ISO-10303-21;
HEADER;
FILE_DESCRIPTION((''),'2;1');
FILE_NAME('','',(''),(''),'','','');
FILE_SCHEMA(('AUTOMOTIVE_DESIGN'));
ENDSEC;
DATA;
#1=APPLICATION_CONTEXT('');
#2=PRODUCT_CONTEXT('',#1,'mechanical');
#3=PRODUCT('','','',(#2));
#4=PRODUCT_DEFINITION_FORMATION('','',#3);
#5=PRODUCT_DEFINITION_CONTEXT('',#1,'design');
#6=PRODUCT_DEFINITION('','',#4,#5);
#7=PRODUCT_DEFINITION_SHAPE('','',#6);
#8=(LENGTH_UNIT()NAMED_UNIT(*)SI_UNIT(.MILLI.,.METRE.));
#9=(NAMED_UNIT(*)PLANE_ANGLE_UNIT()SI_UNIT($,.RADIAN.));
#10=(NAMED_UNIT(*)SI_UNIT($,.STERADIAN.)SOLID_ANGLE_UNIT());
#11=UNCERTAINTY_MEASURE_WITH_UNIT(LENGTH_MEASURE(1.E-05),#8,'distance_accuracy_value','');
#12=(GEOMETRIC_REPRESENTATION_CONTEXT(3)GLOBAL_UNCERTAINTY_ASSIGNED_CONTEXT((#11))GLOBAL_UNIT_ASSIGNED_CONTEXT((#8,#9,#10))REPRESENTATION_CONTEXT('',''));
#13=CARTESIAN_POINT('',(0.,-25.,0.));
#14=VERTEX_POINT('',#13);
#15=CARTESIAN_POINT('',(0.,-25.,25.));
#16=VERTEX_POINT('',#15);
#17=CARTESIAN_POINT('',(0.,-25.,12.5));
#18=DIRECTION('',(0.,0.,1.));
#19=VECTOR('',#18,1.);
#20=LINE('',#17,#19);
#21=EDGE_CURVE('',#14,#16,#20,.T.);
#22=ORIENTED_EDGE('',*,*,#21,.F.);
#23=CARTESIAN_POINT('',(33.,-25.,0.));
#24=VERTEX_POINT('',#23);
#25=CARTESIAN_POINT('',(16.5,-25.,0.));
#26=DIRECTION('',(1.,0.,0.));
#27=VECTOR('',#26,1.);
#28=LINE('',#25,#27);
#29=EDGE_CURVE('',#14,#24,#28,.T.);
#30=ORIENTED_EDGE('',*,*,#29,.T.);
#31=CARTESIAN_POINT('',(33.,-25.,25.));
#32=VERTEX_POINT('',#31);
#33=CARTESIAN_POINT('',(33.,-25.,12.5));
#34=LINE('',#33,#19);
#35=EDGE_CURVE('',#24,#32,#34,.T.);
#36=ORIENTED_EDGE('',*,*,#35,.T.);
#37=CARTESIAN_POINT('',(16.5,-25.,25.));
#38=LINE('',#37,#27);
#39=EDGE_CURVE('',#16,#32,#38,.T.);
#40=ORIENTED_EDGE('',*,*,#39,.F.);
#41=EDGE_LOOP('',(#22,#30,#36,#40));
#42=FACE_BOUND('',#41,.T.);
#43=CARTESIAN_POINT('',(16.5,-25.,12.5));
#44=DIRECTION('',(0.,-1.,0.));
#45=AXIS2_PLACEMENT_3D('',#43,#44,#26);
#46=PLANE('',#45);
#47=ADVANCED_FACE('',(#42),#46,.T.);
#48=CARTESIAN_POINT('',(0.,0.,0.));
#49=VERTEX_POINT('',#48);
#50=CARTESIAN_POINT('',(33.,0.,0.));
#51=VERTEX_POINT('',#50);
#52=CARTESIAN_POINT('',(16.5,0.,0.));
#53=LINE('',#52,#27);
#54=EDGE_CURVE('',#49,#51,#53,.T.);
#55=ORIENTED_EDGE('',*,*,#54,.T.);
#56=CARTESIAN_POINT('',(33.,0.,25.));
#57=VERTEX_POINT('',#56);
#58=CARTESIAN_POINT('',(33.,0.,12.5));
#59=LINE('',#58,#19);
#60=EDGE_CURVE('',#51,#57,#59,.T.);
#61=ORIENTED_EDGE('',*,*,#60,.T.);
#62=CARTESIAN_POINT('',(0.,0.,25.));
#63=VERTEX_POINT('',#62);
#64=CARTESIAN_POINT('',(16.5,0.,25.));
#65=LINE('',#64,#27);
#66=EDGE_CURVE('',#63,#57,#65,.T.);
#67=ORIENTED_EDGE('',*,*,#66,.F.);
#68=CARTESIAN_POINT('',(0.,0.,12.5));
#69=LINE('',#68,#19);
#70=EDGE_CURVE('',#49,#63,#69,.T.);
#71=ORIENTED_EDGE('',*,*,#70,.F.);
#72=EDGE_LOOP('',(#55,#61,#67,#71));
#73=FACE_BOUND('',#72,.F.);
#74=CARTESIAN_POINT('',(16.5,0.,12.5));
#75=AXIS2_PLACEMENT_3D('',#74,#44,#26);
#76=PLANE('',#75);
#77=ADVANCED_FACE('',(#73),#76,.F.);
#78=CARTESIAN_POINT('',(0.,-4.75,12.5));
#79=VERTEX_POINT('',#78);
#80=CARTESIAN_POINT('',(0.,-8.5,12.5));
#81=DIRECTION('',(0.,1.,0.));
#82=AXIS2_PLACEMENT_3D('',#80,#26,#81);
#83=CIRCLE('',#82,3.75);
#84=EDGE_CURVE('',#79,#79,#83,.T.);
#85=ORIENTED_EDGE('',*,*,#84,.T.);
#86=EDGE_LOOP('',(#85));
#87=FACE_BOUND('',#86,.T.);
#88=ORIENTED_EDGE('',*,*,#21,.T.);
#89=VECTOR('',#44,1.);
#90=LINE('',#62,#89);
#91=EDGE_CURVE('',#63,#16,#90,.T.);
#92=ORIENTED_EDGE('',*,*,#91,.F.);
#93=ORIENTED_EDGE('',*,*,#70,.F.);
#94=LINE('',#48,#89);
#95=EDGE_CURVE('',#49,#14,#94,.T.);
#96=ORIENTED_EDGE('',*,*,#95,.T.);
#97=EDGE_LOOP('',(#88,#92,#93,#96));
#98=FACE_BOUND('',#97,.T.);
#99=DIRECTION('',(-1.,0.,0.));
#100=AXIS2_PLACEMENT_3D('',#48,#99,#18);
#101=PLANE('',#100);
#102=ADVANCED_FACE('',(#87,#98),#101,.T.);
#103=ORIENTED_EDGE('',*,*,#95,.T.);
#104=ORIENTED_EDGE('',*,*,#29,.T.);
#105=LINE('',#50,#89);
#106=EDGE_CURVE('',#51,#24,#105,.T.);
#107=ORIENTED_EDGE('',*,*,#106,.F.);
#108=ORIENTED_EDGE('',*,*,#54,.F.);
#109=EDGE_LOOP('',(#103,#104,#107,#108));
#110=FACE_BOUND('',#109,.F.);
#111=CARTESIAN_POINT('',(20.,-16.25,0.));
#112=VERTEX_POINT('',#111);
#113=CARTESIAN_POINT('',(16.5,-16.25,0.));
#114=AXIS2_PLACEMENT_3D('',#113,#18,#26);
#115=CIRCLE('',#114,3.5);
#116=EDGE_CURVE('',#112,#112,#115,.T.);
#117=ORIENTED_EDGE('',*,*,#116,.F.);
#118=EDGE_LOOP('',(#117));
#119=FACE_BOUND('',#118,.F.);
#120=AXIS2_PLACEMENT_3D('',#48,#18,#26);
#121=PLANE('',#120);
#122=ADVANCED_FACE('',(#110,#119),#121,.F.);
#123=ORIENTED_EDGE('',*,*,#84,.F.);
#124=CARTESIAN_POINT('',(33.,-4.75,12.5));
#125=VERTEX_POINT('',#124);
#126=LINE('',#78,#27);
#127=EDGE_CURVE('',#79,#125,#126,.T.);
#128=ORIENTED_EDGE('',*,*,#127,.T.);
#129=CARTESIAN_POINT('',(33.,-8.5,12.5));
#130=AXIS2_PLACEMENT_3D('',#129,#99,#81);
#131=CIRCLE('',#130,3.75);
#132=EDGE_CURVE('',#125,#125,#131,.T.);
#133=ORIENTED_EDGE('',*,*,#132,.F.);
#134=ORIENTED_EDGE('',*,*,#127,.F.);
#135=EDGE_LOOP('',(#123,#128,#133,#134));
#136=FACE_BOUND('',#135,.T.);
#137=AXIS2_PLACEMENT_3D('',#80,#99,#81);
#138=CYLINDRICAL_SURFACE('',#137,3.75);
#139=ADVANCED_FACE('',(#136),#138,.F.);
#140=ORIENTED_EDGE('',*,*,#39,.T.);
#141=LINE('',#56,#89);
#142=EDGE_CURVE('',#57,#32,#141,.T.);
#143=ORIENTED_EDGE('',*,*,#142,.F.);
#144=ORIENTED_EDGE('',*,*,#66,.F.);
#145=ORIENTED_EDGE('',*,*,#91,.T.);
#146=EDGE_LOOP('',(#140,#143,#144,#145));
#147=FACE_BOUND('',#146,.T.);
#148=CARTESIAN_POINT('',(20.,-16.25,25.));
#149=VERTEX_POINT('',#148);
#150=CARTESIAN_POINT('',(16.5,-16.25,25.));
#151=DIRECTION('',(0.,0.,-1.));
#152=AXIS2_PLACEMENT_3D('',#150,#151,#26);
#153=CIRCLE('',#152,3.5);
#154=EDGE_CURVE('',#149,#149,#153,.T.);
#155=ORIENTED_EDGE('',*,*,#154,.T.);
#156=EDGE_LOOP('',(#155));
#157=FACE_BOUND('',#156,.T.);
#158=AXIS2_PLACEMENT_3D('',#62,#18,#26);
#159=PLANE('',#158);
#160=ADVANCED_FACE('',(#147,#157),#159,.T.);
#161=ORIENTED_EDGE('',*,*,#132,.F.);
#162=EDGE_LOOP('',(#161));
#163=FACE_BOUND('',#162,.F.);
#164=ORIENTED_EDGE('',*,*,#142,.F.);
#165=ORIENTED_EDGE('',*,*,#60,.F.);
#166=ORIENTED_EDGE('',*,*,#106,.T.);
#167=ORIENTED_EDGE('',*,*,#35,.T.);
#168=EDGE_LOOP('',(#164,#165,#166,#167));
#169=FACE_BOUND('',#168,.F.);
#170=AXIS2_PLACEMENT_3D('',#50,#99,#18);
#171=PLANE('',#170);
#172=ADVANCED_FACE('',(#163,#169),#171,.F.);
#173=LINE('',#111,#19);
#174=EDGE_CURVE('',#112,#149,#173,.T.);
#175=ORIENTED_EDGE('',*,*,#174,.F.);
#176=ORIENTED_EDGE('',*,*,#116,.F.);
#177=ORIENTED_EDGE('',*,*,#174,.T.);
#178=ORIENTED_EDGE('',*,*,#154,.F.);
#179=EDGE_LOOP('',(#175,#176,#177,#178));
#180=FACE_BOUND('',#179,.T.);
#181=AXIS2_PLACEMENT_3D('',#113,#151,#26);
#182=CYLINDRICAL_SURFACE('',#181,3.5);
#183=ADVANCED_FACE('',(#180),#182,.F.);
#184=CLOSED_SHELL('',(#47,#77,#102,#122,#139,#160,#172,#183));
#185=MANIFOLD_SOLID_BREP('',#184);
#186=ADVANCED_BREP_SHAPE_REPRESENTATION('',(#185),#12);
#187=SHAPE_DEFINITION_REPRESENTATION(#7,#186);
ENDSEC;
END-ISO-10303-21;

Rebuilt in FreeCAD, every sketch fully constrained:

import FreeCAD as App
import Part
import Sketcher
from FreeCAD import Vector
Q = App.Units.Quantity


def add_polygon(sketch, points):
    """Adds a closed chain of lines whose ends are joined by coincident constraints."""
    first, n = sketch.GeometryCount, len(points)
    for a, b in zip(points, points[1:] + points[:1]):
        sketch.addGeometry(Part.LineSegment(App.Vector(*a, 0), App.Vector(*b, 0)), False)
    for i in range(n):
        sketch.addConstraint(Sketcher.Constraint("Coincident", first + i, 2, first + (i + 1) % n, 1))

doc = App.newDocument("Part")
body = doc.addObject("PartDesign::Body", "Body")

# Sketch on XZ plane
sketch1 = body.newObject("Sketcher::SketchObject", "Sketch")
sketch1.AttachmentSupport = (doc.getObject("XZ_Plane"), [""])
sketch1.MapMode = "FlatFace"
add_polygon(sketch1, [(0, 25), (0, 0), (33, 0), (33, 25)])  # lines 0-3
sketch1.addConstraint([
    Sketcher.Constraint("Vertical", 0),
    Sketcher.Constraint("Horizontal", 1),
    Sketcher.Constraint("Vertical", 2),
    Sketcher.Constraint("Horizontal", 3),
    Sketcher.Constraint("Coincident", 0, 2, -1, 1),
    Sketcher.Constraint("DistanceX", 1, 1, 1, 2, Q("33 mm")),
    Sketcher.Constraint("DistanceY", 0, 2, 0, 1, Q("25 mm")),
])
pad1 = body.newObject("PartDesign::Pad", "Pad")
pad1.Profile = sketch1
pad1.Length = 25

# Sketch on XY plane
sketch2 = body.newObject("Sketcher::SketchObject", "Sketch001")
sketch2.AttachmentSupport = (doc.getObject("XY_Plane"), [""])
sketch2.MapMode = "FlatFace"
sketch2.addGeometry(Part.Circle(Vector(16.5, -16.2, 0), Vector(0, 0, 1), 3.5), False)
sketch2.addConstraint([
    Sketcher.Constraint("Diameter", 0, Q("7 mm")),
    Sketcher.Constraint("DistanceX", -1, 1, 0, 3, Q("16.5 mm")),
    Sketcher.Constraint("DistanceY", 0, 3, -1, 1, Q("16.25 mm")),
])
pocket1 = body.newObject("PartDesign::Pocket", "Pocket")
pocket1.Profile = sketch2
pocket1.Type = "ThroughAll"
pocket1.Reversed = True

# Sketch on YZ plane
sketch3 = body.newObject("Sketcher::SketchObject", "Sketch002")
sketch3.AttachmentSupport = (doc.getObject("YZ_Plane"), [""])
sketch3.MapMode = "FlatFace"
sketch3.addGeometry(Part.Circle(Vector(-8.5, 12.5, 0), Vector(0, 0, 1), 3.8), False)
sketch3.addConstraint([
    Sketcher.Constraint("Diameter", 0, Q("7.5 mm")),
    Sketcher.Constraint("DistanceX", 0, 3, -1, 1, Q("8.5 mm")),
    Sketcher.Constraint("DistanceY", -1, 1, 0, 3, Q("12.5 mm")),
])
pocket2 = body.newObject("PartDesign::Pocket", "Pocket001")
pocket2.Profile = sketch3
pocket2.Type = "ThroughAll"
pocket2.Reversed = True

doc.recompute()
